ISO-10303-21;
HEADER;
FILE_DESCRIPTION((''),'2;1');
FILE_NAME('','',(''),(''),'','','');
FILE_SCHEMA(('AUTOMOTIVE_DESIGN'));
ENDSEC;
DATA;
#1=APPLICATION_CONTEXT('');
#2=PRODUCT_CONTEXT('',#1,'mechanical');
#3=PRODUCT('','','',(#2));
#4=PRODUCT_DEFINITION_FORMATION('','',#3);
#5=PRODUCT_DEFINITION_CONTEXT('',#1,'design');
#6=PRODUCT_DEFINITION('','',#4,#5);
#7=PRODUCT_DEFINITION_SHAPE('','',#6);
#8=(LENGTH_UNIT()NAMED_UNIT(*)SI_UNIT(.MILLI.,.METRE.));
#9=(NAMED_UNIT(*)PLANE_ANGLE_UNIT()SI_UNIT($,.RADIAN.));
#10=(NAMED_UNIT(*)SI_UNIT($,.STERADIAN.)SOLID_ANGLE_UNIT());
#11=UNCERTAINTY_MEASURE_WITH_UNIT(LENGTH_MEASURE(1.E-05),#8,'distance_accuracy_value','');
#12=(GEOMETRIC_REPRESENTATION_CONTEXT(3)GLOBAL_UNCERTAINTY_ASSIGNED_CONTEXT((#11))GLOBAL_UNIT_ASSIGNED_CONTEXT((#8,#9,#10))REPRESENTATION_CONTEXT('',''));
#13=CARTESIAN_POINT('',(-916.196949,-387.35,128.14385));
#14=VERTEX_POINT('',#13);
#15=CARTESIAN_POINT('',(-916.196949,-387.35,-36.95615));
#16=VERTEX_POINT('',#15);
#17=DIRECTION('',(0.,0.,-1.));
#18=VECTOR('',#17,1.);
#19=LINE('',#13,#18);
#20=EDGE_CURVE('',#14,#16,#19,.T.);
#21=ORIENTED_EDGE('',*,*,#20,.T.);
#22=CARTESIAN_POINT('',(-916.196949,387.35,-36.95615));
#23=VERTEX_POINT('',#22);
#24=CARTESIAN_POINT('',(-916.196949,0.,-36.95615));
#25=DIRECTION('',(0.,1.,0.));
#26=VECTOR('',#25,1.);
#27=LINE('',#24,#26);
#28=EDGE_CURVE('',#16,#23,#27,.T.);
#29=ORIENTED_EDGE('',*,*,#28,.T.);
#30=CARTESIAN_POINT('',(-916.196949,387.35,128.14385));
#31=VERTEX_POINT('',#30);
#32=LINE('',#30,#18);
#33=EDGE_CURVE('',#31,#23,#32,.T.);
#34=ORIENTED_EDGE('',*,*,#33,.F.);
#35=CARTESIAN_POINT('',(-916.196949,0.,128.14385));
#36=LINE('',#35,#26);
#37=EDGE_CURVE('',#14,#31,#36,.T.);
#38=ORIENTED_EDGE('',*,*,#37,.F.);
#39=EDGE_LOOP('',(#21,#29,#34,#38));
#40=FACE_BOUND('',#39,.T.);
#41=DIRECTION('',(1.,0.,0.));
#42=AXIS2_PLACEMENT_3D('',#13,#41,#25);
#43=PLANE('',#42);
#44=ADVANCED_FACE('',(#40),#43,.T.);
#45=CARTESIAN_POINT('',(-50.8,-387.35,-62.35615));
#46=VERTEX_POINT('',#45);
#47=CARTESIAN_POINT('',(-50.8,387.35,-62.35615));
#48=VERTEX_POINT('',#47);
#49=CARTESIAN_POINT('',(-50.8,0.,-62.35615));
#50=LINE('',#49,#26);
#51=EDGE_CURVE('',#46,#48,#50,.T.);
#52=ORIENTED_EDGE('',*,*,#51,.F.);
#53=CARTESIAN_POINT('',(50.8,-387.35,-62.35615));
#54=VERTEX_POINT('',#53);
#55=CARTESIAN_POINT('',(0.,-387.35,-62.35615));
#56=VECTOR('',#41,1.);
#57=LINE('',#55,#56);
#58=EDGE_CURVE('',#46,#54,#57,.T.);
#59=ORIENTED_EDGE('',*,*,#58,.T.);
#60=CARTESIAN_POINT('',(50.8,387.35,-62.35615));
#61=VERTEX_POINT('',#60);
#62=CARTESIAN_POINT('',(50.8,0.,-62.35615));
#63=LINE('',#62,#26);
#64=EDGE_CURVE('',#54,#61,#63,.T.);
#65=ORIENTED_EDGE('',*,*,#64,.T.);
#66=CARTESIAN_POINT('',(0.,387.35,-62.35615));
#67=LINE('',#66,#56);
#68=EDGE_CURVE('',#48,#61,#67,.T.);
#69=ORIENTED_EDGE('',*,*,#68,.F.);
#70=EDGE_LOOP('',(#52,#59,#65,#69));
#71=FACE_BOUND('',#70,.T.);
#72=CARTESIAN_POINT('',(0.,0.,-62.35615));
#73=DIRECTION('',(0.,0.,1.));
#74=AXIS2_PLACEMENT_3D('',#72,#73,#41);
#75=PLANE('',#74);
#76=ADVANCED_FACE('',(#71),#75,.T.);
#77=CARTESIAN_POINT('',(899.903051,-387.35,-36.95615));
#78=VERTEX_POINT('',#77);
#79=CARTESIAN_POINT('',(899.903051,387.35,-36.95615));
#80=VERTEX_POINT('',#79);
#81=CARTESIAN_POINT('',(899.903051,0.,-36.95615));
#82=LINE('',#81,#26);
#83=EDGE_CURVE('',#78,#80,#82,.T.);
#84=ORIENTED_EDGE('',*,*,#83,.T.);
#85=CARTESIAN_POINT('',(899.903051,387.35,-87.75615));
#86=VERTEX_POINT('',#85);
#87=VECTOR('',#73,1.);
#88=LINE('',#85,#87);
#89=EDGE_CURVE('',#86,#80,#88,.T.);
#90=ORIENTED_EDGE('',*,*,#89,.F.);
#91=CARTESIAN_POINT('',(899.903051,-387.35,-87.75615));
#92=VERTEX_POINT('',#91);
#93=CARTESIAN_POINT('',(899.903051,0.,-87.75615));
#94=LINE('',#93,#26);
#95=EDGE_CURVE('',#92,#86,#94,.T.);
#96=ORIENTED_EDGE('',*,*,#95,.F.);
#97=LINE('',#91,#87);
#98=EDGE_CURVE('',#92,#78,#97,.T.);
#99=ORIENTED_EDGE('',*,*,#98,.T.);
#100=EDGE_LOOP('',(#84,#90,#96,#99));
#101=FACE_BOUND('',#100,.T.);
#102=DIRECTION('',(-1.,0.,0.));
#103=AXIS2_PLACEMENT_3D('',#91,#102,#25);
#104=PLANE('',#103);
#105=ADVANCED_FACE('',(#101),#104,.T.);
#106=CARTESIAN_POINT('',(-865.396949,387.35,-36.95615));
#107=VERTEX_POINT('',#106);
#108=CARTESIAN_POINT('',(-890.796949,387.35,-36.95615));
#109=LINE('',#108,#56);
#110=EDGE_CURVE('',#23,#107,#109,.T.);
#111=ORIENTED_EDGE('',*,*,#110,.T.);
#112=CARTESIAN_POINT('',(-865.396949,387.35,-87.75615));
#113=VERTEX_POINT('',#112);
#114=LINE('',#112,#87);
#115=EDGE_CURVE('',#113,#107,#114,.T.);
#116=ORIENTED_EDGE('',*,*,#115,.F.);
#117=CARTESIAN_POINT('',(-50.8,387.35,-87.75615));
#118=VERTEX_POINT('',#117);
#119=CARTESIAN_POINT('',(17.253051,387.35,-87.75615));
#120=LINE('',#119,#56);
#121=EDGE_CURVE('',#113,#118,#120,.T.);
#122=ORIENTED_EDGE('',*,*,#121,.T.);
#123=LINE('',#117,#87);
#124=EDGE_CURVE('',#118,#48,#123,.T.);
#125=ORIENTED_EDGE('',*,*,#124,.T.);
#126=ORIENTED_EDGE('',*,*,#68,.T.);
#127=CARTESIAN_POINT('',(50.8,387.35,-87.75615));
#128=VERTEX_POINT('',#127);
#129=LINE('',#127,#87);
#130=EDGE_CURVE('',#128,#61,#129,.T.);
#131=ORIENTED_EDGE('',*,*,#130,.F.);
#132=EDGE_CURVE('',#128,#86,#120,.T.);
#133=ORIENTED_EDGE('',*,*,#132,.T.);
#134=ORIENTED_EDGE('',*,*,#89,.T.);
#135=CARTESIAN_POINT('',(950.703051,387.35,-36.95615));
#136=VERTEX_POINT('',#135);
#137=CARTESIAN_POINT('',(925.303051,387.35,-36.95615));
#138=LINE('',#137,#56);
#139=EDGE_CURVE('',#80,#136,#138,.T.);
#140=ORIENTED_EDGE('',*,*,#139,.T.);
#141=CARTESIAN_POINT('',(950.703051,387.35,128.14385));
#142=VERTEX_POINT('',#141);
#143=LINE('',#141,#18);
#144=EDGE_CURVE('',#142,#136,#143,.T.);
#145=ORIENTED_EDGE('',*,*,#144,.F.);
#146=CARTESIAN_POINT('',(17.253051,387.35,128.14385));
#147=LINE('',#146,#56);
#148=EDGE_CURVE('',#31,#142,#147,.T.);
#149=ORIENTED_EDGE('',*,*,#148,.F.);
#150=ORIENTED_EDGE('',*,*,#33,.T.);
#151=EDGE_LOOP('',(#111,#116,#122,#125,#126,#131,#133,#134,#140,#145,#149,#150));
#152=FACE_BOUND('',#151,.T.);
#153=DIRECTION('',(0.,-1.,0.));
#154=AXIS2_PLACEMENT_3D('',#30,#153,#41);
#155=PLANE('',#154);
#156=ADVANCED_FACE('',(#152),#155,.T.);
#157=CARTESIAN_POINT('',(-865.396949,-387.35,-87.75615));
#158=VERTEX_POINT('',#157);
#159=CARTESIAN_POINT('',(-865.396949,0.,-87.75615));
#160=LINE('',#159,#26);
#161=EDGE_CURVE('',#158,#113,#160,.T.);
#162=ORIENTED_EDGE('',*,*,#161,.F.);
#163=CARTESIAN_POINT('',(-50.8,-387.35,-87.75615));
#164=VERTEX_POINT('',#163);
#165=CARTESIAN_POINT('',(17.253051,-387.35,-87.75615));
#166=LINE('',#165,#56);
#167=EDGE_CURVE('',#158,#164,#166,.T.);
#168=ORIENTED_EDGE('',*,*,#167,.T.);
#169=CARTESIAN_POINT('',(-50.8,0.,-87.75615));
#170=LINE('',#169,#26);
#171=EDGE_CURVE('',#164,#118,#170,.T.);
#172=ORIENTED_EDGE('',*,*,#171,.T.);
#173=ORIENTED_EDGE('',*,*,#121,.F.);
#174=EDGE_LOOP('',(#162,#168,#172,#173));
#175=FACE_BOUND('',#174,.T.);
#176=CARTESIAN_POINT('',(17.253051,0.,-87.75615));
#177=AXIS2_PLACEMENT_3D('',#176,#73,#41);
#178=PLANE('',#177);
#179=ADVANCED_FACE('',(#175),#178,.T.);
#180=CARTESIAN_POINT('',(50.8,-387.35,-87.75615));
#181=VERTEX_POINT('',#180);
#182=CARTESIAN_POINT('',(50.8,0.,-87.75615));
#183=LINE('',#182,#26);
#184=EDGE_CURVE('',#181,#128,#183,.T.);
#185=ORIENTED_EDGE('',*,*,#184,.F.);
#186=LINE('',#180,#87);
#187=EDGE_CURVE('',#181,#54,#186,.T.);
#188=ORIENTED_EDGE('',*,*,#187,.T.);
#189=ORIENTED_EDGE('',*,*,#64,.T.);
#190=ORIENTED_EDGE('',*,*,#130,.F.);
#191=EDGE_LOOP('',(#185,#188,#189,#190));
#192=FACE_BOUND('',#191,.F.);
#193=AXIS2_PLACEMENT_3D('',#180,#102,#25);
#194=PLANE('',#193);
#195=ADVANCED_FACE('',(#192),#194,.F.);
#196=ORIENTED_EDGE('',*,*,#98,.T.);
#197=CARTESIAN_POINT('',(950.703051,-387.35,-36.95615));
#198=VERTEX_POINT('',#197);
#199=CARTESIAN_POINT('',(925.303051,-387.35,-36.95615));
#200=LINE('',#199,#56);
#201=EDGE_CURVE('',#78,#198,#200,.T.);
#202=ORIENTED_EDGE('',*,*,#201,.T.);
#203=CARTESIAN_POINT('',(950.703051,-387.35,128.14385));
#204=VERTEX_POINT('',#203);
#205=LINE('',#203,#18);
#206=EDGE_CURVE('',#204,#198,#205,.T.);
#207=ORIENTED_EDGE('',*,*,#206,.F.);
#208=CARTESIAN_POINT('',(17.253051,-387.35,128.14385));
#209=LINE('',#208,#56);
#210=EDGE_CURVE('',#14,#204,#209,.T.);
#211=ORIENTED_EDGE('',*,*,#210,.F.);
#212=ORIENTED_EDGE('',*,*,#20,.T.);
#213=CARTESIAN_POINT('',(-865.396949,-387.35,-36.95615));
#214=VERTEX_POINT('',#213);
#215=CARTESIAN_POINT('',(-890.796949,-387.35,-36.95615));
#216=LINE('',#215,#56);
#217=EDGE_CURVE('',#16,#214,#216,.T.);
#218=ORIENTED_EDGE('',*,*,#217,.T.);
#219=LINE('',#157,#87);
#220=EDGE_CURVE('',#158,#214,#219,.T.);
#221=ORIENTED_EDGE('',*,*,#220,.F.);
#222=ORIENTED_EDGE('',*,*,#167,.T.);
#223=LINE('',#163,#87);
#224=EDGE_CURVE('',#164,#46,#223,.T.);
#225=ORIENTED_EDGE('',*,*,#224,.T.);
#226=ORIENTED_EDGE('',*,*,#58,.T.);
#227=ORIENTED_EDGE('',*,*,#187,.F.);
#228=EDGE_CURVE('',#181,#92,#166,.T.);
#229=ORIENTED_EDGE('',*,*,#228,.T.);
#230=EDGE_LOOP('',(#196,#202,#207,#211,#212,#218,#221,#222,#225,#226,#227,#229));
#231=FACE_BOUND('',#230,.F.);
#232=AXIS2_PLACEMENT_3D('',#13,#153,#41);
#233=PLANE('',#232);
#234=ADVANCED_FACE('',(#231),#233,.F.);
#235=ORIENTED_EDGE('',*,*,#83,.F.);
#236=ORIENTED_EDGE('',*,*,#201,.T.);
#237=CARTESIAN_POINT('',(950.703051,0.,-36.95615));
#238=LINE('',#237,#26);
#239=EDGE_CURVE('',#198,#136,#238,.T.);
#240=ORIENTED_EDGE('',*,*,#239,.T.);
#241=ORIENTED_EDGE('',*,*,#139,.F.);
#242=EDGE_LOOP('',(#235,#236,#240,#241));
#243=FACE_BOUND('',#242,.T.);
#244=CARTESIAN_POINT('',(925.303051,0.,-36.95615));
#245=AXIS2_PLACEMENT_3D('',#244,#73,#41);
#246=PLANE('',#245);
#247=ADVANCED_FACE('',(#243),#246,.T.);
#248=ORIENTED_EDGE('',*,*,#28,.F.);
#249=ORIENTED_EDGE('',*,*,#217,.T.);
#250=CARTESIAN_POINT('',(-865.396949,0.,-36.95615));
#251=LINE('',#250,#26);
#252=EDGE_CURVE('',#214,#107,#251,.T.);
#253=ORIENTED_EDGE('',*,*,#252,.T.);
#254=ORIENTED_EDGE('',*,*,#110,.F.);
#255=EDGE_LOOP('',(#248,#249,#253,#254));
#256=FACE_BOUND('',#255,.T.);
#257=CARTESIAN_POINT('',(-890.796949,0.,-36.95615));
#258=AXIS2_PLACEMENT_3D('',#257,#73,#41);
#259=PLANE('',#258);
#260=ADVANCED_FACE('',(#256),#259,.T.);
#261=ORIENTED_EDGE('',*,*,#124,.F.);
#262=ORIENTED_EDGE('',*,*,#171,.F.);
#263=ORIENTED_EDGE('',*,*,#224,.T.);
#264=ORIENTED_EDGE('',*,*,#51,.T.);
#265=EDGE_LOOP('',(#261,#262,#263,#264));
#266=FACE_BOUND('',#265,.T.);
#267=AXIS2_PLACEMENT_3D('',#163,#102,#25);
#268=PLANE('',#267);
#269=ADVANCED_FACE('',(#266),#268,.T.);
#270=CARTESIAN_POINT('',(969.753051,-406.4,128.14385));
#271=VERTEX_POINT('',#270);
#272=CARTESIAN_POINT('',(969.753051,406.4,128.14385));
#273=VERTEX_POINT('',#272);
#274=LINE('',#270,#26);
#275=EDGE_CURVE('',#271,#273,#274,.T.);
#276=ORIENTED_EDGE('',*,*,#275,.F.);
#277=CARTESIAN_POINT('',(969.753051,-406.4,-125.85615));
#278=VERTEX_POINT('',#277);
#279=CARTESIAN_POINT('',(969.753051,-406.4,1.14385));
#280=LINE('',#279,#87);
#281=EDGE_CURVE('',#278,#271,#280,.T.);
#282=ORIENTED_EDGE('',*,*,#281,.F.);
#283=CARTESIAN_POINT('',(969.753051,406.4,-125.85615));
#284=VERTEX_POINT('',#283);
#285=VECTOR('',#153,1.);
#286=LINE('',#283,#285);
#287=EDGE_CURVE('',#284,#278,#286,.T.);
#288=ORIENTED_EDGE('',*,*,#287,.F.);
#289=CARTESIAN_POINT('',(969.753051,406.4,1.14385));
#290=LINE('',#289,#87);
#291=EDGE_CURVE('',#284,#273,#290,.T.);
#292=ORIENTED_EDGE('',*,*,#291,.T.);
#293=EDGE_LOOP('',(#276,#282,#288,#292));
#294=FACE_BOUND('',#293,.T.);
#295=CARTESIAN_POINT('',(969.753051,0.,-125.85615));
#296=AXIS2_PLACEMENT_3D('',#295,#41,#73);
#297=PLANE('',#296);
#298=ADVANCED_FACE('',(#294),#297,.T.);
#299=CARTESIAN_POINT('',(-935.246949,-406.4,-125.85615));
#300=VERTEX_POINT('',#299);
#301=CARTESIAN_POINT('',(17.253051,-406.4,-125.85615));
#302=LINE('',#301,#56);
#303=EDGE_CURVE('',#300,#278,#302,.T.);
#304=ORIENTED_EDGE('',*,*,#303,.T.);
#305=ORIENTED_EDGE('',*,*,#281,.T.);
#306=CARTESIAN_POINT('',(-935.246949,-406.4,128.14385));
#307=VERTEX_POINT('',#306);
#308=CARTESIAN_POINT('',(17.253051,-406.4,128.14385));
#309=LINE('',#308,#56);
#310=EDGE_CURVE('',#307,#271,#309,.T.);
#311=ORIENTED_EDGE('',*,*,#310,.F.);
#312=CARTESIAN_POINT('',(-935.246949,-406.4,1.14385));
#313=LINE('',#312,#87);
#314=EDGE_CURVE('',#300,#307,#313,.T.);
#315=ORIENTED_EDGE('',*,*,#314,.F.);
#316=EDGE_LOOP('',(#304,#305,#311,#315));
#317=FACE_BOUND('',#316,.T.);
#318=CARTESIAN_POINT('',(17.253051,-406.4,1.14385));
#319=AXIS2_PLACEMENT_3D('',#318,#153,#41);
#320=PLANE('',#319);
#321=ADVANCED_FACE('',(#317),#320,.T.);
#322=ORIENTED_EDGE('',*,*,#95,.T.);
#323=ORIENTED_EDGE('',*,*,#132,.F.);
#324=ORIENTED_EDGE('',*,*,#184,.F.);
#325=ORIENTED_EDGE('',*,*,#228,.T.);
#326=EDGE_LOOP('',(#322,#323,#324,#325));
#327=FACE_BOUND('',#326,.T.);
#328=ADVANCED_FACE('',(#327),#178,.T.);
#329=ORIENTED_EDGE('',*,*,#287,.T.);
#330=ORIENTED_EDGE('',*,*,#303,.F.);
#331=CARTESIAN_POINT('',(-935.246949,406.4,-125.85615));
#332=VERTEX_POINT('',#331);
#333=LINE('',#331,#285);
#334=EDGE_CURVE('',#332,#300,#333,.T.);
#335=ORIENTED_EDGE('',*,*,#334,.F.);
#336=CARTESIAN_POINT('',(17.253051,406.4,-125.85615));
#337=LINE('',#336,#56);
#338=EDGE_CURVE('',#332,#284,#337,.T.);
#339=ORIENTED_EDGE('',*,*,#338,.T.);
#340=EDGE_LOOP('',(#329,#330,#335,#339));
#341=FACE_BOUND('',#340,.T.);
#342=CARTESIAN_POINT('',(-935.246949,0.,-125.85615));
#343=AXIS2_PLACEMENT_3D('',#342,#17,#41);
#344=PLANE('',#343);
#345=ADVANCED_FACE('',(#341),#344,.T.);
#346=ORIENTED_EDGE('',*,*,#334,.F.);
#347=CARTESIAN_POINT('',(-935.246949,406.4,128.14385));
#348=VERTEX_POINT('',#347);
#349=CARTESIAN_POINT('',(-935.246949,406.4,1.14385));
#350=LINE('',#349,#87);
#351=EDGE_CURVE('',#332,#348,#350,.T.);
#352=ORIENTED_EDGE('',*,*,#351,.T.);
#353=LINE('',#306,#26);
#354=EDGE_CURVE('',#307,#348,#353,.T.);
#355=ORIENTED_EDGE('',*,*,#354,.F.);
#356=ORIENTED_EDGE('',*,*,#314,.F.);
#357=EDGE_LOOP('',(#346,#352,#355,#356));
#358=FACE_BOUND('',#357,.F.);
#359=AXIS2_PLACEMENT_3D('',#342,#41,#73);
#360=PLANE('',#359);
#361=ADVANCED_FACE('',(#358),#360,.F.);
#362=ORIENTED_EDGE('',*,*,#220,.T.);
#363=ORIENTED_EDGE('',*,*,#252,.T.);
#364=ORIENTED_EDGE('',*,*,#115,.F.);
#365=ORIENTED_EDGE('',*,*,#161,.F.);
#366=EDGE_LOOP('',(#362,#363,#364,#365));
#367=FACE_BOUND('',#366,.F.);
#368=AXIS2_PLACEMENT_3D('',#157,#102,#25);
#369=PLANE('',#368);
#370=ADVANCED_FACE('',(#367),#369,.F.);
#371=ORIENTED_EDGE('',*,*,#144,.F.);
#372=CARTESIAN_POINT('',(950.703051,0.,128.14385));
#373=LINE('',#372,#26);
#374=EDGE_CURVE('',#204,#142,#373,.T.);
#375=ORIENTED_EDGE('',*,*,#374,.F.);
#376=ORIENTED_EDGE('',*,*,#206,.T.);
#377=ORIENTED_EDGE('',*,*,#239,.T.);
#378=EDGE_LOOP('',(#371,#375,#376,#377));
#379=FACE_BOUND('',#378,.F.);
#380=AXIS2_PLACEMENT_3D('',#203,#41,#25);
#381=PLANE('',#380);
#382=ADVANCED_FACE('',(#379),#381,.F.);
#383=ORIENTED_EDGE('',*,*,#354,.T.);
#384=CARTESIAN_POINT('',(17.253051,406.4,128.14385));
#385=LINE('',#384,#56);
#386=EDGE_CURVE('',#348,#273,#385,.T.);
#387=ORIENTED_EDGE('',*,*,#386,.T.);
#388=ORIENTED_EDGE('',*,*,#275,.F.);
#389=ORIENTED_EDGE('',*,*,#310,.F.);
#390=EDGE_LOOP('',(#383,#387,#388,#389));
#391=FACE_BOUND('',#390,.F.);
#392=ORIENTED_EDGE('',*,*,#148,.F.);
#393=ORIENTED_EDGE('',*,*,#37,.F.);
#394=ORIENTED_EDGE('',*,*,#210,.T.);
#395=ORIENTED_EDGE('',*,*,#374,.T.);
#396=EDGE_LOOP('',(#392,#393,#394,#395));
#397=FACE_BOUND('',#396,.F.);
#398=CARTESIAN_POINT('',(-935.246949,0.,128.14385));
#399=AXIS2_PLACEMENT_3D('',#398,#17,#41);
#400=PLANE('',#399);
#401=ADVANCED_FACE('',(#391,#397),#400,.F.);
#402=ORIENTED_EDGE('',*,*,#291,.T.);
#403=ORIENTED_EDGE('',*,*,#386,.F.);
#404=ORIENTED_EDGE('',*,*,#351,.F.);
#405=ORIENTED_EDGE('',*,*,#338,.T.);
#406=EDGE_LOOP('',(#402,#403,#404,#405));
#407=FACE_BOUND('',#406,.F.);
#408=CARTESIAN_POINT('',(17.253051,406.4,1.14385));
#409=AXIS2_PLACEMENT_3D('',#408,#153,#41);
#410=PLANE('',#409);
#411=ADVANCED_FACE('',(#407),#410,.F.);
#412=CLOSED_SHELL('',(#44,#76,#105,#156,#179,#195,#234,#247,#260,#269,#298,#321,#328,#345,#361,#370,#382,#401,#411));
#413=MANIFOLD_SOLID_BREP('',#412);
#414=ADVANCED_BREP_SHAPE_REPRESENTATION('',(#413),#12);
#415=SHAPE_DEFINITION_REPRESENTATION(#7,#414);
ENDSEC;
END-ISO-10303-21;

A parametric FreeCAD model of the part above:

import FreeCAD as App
import Part
import Sketcher
Q = App.Units.Quantity

doc = App.newDocument("Part")
body = doc.addObject("PartDesign::Body", "Body")

# Sketch on XZ plane
sketch1 = doc.addObject("Sketcher::SketchObject", "Sketch")
body.addObject(sketch1)
sketch1.AttachmentSupport = (doc.XZ_Plane, [""])
sketch1.MapMode = "FlatFace"
sketch1.addGeometry([
    Part.LineSegment(App.Vector(-935, 128, 0), App.Vector(-935, -126, 0)),
    Part.LineSegment(App.Vector(-935, -126, 0), App.Vector(970, -126, 0)),
    Part.LineSegment(App.Vector(970, -126, 0), App.Vector(970, 128, 0)),
    Part.LineSegment(App.Vector(970, 128, 0), App.Vector(-935, 128, 0)),
], False)
sketch1.addConstraint([
    Sketcher.Constraint("Coincident", 0, 2, 1, 1),
    Sketcher.Constraint("Coincident", 1, 2, 2, 1),
    Sketcher.Constraint("Coincident", 2, 2, 3, 1),
    Sketcher.Constraint("Coincident", 3, 2, 0, 1),
    Sketcher.Constraint("Vertical", 0),
    Sketcher.Constraint("Horizontal", 1),
    Sketcher.Constraint("Vertical", 2),
    Sketcher.Constraint("Horizontal", 3),
    Sketcher.Constraint("DistanceX", 1, 1, 1, 2, Q("75 in")),
    Sketcher.Constraint("DistanceY", 0, 2, 0, 1, Q("10 in")),
    Sketcher.Constraint("DistanceX", 0, 2, -1, 1, 935.246949),
    Sketcher.Constraint("DistanceY", 0, 2, -1, 1, 125.85615),
])
pad1 = doc.addObject("PartDesign::Pad", "Pad")
body.addObject(pad1)
pad1.Profile = sketch1
pad1.Length = Q("32 in")
pad1.Midplane = True

# Sketch on XY plane
sketch2 = doc.addObject("Sketcher::SketchObject", "Sketch001")
body.addObject(sketch2)
sketch2.AttachmentSupport = (doc.XY_Plane, [""])
sketch2.MapMode = "FlatFace"
sketch2.AttachmentOffset = App.Placement(App.Vector(0, 0, 128.14385), App.Rotation())
sketch2.addGeometry([
    Part.LineSegment(App.Vector(-916, 387, 0), App.Vector(-916, -387, 0)),
    Part.LineSegment(App.Vector(-916, -387, 0), App.Vector(951, -387, 0)),
    Part.LineSegment(App.Vector(951, -387, 0), App.Vector(951, 387, 0)),
    Part.LineSegment(App.Vector(951, 387, 0), App.Vector(-916, 387, 0)),
], False)
sketch2.addConstraint([
    Sketcher.Constraint("Coincident", 0, 2, 1, 1),
    Sketcher.Constraint("Coincident", 1, 2, 2, 1),
    Sketcher.Constraint("Coincident", 2, 2, 3, 1),
    Sketcher.Constraint("Coincident", 3, 2, 0, 1),
    Sketcher.Constraint("Vertical", 0),
    Sketcher.Constraint("Horizontal", 1),
    Sketcher.Constraint("Vertical", 2),
    Sketcher.Constraint("Horizontal", 3),
    Sketcher.Constraint("DistanceX", 1, 1, 1, 2, Q("73.5 in")),
    Sketcher.Constraint("DistanceY", 0, 2, 0, 1, Q("30.5 in")),
    Sketcher.Constraint("DistanceY", 0, 2, -1, 1, Q("15.25 in")),
    Sketcher.Constraint("DistanceX", 0, 2, -1, 1, 916.196949),
])
pocket1 = doc.addObject("PartDesign::Pocket", "Pocket")
body.addObject(pocket1)
pocket1.Profile = sketch2
pocket1.Length = Q("8.5 in")

# Sketch on XY plane
sketch3 = doc.addObject("Sketcher::SketchObject", "Sketch002")
body.addObject(sketch3)
sketch3.AttachmentSupport = (doc.XY_Plane, [""])
sketch3.MapMode = "FlatFace"
sketch3.AttachmentOffset = App.Placement(App.Vector(0, 0, -87.75615), App.Rotation())
sketch3.addGeometry([
    Part.LineSegment(App.Vector(-916, 387, 0), App.Vector(-916, -387, 0)),  # 0
    Part.LineSegment(App.Vector(-916, -387, 0), App.Vector(-865, -387, 0)),  # 1
    Part.LineSegment(App.Vector(-865, -387, 0), App.Vector(-865, 387, 0)),  # 2
    Part.LineSegment(App.Vector(-865, 387, 0), App.Vector(-916, 387, 0)),  # 3
    Part.LineSegment(App.Vector(900, 387, 0), App.Vector(900, -387, 0)),  # 4
    Part.LineSegment(App.Vector(900, -387, 0), App.Vector(951, -387, 0)),  # 5
    Part.LineSegment(App.Vector(951, -387, 0), App.Vector(951, 387, 0)),  # 6
    Part.LineSegment(App.Vector(951, 387, 0), App.Vector(900, 387, 0)),  # 7
], False)
sketch3.addConstraint([
    Sketcher.Constraint("Coincident", 0, 2, 1, 1),
    Sketcher.Constraint("Coincident", 1, 2, 2, 1),
    Sketcher.Constraint("Coincident", 2, 2, 3, 1),
    Sketcher.Constraint("Coincident", 3, 2, 0, 1),
    Sketcher.Constraint("Coincident", 4, 2, 5, 1),
    Sketcher.Constraint("Coincident", 5, 2, 6, 1),
    Sketcher.Constraint("Coincident", 6, 2, 7, 1),
    Sketcher.Constraint("Coincident", 7, 2, 4, 1),
    Sketcher.Constraint("Vertical", 0),
    Sketcher.Constraint("Horizontal", 1),
    Sketcher.Constraint("Vertical", 2),
    Sketcher.Constraint("Horizontal", 3),
    Sketcher.Constraint("Vertical", 4),
    Sketcher.Constraint("Horizontal", 5),
    Sketcher.Constraint("Vertical", 6),
    Sketcher.Constraint("Horizontal", 7),
    Sketcher.Constraint("Horizontal", 1, 2, 4, 2),
    Sketcher.Constraint("Horizontal", 3, 2, 6, 2),
    Sketcher.Constraint("Equal", 3, 5),
    Sketcher.Constraint("DistanceX", 1, 1, 1, 2, Q("2 in")),
    Sketcher.Constraint("DistanceY", 0, 2, 0, 1, Q("30.5 in")),
    Sketcher.Constraint("DistanceX", 1, 2, 4, 2, Q("69.5 in")),
    Sketcher.Constraint("DistanceY", 0, 2, -1, 1, Q("15.25 in")),
    Sketcher.Constraint("DistanceX", 0, 2, -1, 1, 916.196949),
])
pad2 = doc.addObject("PartDesign::Pad", "Pad001")
body.addObject(pad2)
pad2.Profile = sketch3
pad2.Length = Q("2 in")

# Sketch on XY plane
sketch4 = doc.addObject("Sketcher::SketchObject", "Sketch003")
body.addObject(sketch4)
sketch4.AttachmentSupport = (doc.XY_Plane, [""])
sketch4.MapMode = "FlatFace"
sketch4.AttachmentOffset = App.Placement(App.Vector(0, 0, -87.75615), App.Rotation())
sketch4.addGeometry([
    Part.LineSegment(App.Vector(-51, 387, 0), App.Vector(-51, -387, 0)),
    Part.LineSegment(App.Vector(-51, -387, 0), App.Vector(51, -387, 0)),
    Part.LineSegment(App.Vector(51, -387, 0), App.Vector(51, 387, 0)),
    Part.LineSegment(App.Vector(51, 387, 0), App.Vector(-51, 387, 0)),
], False)
sketch4.addConstraint([
    Sketcher.Constraint("Coincident", 0, 2, 1, 1),
    Sketcher.Constraint("Coincident", 1, 2, 2, 1),
    Sketcher.Constraint("Coincident", 2, 2, 3, 1),
    Sketcher.Constraint("Coincident", 3, 2, 0, 1),
    Sketcher.Constraint("Vertical", 0),
    Sketcher.Constraint("Horizontal", 1),
    Sketcher.Constraint("Vertical", 2),
    Sketcher.Constraint("Horizontal", 3),
    Sketcher.Constraint("Symmetric", 0, 2, 2, 2, -1, 1),
    Sketcher.Constraint("DistanceX", 1, 1, 1, 2, Q("4 in")),
    Sketcher.Constraint("DistanceY", 0, 2, 0, 1, Q("30.5 in")),
])
pad3 = doc.addObject("PartDesign::Pad", "Pad002")
body.addObject(pad3)
pad3.Profile = sketch4
pad3.Length = Q("1 in")

doc.recompute()
